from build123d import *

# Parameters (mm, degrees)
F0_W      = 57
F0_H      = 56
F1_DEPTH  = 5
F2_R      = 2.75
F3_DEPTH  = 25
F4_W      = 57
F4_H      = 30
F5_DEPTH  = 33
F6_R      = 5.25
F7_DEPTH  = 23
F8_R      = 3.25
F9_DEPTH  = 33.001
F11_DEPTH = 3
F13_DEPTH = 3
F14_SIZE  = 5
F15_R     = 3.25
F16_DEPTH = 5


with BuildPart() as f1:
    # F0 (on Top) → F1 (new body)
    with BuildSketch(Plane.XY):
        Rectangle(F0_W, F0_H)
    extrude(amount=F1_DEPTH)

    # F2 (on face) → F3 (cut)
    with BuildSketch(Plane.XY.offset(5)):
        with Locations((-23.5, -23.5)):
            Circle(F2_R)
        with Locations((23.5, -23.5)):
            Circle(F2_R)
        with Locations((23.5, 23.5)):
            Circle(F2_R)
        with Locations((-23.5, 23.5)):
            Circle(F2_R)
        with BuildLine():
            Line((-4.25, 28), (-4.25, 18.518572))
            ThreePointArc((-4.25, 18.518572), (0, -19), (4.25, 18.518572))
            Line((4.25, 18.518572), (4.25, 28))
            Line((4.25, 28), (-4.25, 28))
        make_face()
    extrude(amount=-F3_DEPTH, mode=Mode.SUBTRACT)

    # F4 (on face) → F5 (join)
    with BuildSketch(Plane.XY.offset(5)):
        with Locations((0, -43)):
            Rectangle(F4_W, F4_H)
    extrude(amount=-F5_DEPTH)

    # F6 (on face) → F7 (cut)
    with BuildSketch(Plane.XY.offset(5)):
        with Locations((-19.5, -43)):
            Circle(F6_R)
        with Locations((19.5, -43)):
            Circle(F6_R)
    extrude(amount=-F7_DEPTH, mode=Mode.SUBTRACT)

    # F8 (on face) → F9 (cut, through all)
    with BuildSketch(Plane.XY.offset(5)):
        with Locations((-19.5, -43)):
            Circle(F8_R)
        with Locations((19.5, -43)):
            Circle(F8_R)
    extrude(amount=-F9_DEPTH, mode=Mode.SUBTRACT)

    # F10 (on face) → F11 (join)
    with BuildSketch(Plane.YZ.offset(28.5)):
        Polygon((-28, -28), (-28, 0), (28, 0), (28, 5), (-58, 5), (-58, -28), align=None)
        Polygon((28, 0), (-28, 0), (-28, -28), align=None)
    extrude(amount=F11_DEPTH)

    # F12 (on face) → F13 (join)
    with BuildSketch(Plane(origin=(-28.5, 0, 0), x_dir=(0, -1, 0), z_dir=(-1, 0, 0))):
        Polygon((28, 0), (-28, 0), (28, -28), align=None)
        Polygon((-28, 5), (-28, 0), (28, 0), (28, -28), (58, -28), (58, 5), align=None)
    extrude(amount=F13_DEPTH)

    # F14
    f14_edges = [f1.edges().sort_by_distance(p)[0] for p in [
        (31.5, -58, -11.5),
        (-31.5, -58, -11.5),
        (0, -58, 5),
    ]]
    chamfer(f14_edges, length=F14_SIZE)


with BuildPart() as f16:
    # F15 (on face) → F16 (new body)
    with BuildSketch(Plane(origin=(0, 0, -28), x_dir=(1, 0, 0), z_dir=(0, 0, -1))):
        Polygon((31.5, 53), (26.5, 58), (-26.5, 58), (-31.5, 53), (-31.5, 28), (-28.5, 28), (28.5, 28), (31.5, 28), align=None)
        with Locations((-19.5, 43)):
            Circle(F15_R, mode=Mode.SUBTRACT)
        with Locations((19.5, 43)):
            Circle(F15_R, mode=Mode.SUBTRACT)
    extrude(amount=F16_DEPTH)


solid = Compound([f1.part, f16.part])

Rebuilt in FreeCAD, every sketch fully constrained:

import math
import FreeCAD as App
import Part
import Sketcher
from FreeCAD import Vector


def edges_at(feature, points):
    """Names of the edges that pass closest to the given points."""
    edges = feature.Shape.Edges
    near = lambda p: min(range(len(edges)), key=lambda i: edges[i].distToShape(Part.Vertex(*p))[0])
    return sorted({f"Edge{near(p) + 1}" for p in points})


def add_polygon(sketch, points):
    """Adds a closed chain of lines whose ends are joined by coincident constraints."""
    first, n = sketch.GeometryCount, len(points)
    for a, b in zip(points, points[1:] + points[:1]):
        sketch.addGeometry(Part.LineSegment(App.Vector(*a, 0), App.Vector(*b, 0)), False)
    for i in range(n):
        sketch.addConstraint(Sketcher.Constraint("Coincident", first + i, 2, first + (i + 1) % n, 1))

doc = App.newDocument("Part")
body = doc.addObject("PartDesign::Body", "Body")

sketch1 = body.newObject("Sketcher::SketchObject", "Sketch")
sketch1.AttachmentSupport = (doc.getObject("XY_Plane"), [""])
sketch1.MapMode = "FlatFace"
add_polygon(sketch1, [(-28, 28), (-28, -28), (28, -28), (28, 28)])
sketch1.addConstraint([
    Sketcher.Constraint("Vertical", 0),
    Sketcher.Constraint("Horizontal", 1),
    Sketcher.Constraint("Vertical", 2),
    Sketcher.Constraint("Horizontal", 3),
    Sketcher.Constraint("Symmetric", 0, 2, 2, 2, -1, 1),
    Sketcher.Constraint("DistanceX", 1, 1, 1, 2, 57.0),
    Sketcher.Constraint("DistanceY", 0, 2, 0, 1, 56.0),
])
pad1 = body.newObject("PartDesign::Pad", "Pad")
pad1.Profile = sketch1
pad1.Length = 5

sketch2 = body.newObject("Sketcher::SketchObject", "Sketch001")
sketch2.AttachmentSupport = (doc.getObject("XY_Plane"), [""])
sketch2.MapMode = "FlatFace"
sketch2.AttachmentOffset = App.Placement(Vector(0, 0, 5), App.Rotation())
sketch2.addGeometry([
    Part.Circle(Vector(-23.5, -23.5, 0), Vector(0, 0, 1), 2.8),
    Part.Circle(Vector(23.5, -23.5, 0), Vector(0, 0, 1), 2.8),
    Part.Circle(Vector(23.5, 23.5, 0), Vector(0, 0, 1), 2.8),
    Part.Circle(Vector(-23.5, 23.5, 0), Vector(0, 0, 1), 2.8),
    Part.LineSegment(Vector(-4.2, 28, 0), Vector(-4.2, 18.5, 0)),
    Part.ArcOfCircle(Part.Circle(Vector(0, 0, 0), Vector(0, 0, 1), 19), math.radians(103), math.radians(437)),
    Part.LineSegment(Vector(4.2, 18.5, 0), Vector(4.2, 28, 0)),
    Part.LineSegment(Vector(4.2, 28, 0), Vector(-4.2, 28, 0)),
], False)
sketch2.addConstraint([
    Sketcher.Constraint("Coincident", 4, 2, 5, 1),
    Sketcher.Constraint("Coincident", 5, 2, 6, 1),
    Sketcher.Constraint("Coincident", 6, 2, 7, 1),
    Sketcher.Constraint("Coincident", 7, 2, 4, 1),
    Sketcher.Constraint("Vertical", 4),
    Sketcher.Constraint("Vertical", 6),
    Sketcher.Constraint("Horizontal", 7),
    Sketcher.Constraint("Coincident", 5, 3, -1, 1),
    Sketcher.Constraint("Equal", 0, 1),
    Sketcher.Constraint("Equal", 1, 2),
    Sketcher.Constraint("Equal", 2, 3),
    Sketcher.Constraint("Symmetric", 0, 3, 2, 3, -1, 1),
    Sketcher.Constraint("Symmetric", 1, 3, 3, 3, -1, 1),
    Sketcher.Constraint("Symmetric", 0, 3, 1, 3, -2),
    Sketcher.Constraint("Horizontal", 4, 2, 5, 2),
    Sketcher.Constraint("Radius", 5, 19.0),
    Sketcher.Constraint("Diameter", 0, 5.5),
    Sketcher.Constraint("DistanceX", 7, 2, 7, 1, 8.5),
    Sketcher.Constraint("DistanceY", -1, 1, 6, 2, 28.0),
    Sketcher.Constraint("DistanceX", 0, 3, 1, 3, 47.0),
    Sketcher.Constraint("DistanceY", 1, 3, 2, 3, 47.0),
])
pocket1 = body.newObject("PartDesign::Pocket", "Pocket")
pocket1.Profile = sketch2
pocket1.Length = 25

sketch3 = body.newObject("Sketcher::SketchObject", "Sketch002")
sketch3.AttachmentSupport = (doc.getObject("XY_Plane"), [""])
sketch3.MapMode = "FlatFace"
sketch3.AttachmentOffset = App.Placement(Vector(0, 0, 5), App.Rotation())
add_polygon(sketch3, [(-28, -28), (-28, -58), (28, -58), (28, -28)])
sketch3.addConstraint([
    Sketcher.Constraint("Vertical", 0),
    Sketcher.Constraint("Horizontal", 1),
    Sketcher.Constraint("Vertical", 2),
    Sketcher.Constraint("Horizontal", 3),
    Sketcher.Constraint("DistanceX", 1, 1, 1, 2, 57.0),
    Sketcher.Constraint("DistanceY", 0, 2, 0, 1, 30.0),
    Sketcher.Constraint("DistanceY", 0, 2, -1, 1, 58.0),
    Sketcher.Constraint("DistanceX", 0, 2, -1, 1, 28.5),
])
pad2 = body.newObject("PartDesign::Pad", "Pad001")
pad2.Profile = sketch3
pad2.Length = 33
pad2.Reversed = True

sketch4 = body.newObject("Sketcher::SketchObject", "Sketch003")
sketch4.AttachmentSupport = (doc.getObject("XY_Plane"), [""])
sketch4.MapMode = "FlatFace"
sketch4.AttachmentOffset = App.Placement(Vector(0, 0, 5), App.Rotation())
sketch4.addGeometry([
    Part.Circle(Vector(-20, -43, 0), Vector(0, 0, 1), 5),
    Part.Circle(Vector(20, -43, 0), Vector(0, 0, 1), 5),
], False)
sketch4.addConstraint([
    Sketcher.Constraint("Equal", 0, 1),
    Sketcher.Constraint("Symmetric", 0, 3, 1, 3, -2),
    Sketcher.Constraint("Diameter", 0, 10.5),
    Sketcher.Constraint("DistanceY", 0, 3, -1, 1, 43.0),
    Sketcher.Constraint("DistanceX", 0, 3, 1, 3, 39.0),
])
pocket2 = body.newObject("PartDesign::Pocket", "Pocket001")
pocket2.Profile = sketch4
pocket2.Length = 23

sketch5 = body.newObject("Sketcher::SketchObject", "Sketch004")
sketch5.AttachmentSupport = (doc.getObject("XY_Plane"), [""])
sketch5.MapMode = "FlatFace"
sketch5.AttachmentOffset = App.Placement(Vector(0, 0, 5), App.Rotation())
sketch5.addGeometry([
    Part.Circle(Vector(-19.5, -43, 0), Vector(0, 0, 1), 3.2),
    Part.Circle(Vector(19.5, -43, 0), Vector(0, 0, 1), 3.2),
], False)
sketch5.addConstraint([
    Sketcher.Constraint("Equal", 0, 1),
    Sketcher.Constraint("Symmetric", 0, 3, 1, 3, -2),
    Sketcher.Constraint("Diameter", 0, 6.5),
    Sketcher.Constraint("DistanceY", 0, 3, -1, 1, 43.0),
    Sketcher.Constraint("DistanceX", 0, 3, 1, 3, 39.0),
])
pocket3 = body.newObject("PartDesign::Pocket", "Pocket002")
pocket3.Profile = sketch5
pocket3.Type = "ThroughAll"

sketch6 = body.newObject("Sketcher::SketchObject", "Sketch005")
sketch6.AttachmentSupport = (doc.getObject("YZ_Plane"), [""])
sketch6.MapMode = "FlatFace"
sketch6.AttachmentOffset = App.Placement(Vector(0, 0, 28.5), App.Rotation())
add_polygon(sketch6, [(28, 0), (28, 5), (-58, 5), (-58, -28), (-28, -28)])
sketch6.addConstraint([
    Sketcher.Constraint("Vertical", 0),
    Sketcher.Constraint("Horizontal", 1),
    Sketcher.Constraint("Vertical", 2),
    Sketcher.Constraint("Horizontal", 3),
    Sketcher.Constraint("PointOnObject", 4, 2, -1),
    Sketcher.Constraint("DistanceX", 1, 2, 1, 1, 86.0),
    Sketcher.Constraint("DistanceX", 3, 1, 3, 2, 30.0),
    Sketcher.Constraint("DistanceY", 0, 1, 0, 2, 5.0),
    Sketcher.Constraint("DistanceY", 2, 2, 2, 1, 33.0),
    Sketcher.Constraint("DistanceX", -1, 1, 0, 2, 28.0),
])
pad3 = body.newObject("PartDesign::Pad", "Pad002")
pad3.Profile = sketch6
pad3.Length = 3

sketch7 = body.newObject("Sketcher::SketchObject", "Sketch006")
sketch7.AttachmentSupport = (doc.getObject("YZ_Plane"), [""])
sketch7.MapMode = "FlatFace"
sketch7.AttachmentOffset = App.Placement(Vector(0, 0, -28.5), App.Rotation())
add_polygon(sketch7, [(28, 0), (-28, -28), (-58, -28), (-58, 5), (28, 5)])
sketch7.addConstraint([
    Sketcher.Constraint("Horizontal", 1),
    Sketcher.Constraint("Vertical", 2),
    Sketcher.Constraint("Horizontal", 3),
    Sketcher.Constraint("Vertical", 4),
    Sketcher.Constraint("PointOnObject", 4, 2, -1),
    Sketcher.Constraint("DistanceX", 1, 2, 1, 1, 30.0),
    Sketcher.Constraint("DistanceX", 3, 1, 3, 2, 86.0),
    Sketcher.Constraint("DistanceY", 2, 1, 2, 2, 33.0),
    Sketcher.Constraint("DistanceY", 4, 2, 4, 1, 5.0),
    Sketcher.Constraint("DistanceX", 0, 2, -1, 1, 28.0),
])
pad4 = body.newObject("PartDesign::Pad", "Pad003")
pad4.Profile = sketch7
pad4.Length = 3
pad4.Reversed = True
doc.recompute()

chamfer = body.newObject("PartDesign::Chamfer", "Chamfer")
chamfer.Base = (pad4, edges_at(pad4, [(31.5, -58, -11.5), (-31.5, -58, -11.5), (0, -58, 5)]))
chamfer.Size = 5
body2 = doc.addObject("PartDesign::Body", "Body001")

sketch8 = body2.newObject("Sketcher::SketchObject", "Sketch007")
sketch8.AttachmentSupport = (doc.getObject("XY_Plane001"), [""])
sketch8.MapMode = "FlatFace"
sketch8.AttachmentOffset = App.Placement(Vector(0, 0, -28), App.Rotation())
add_polygon(sketch8, [(31.5, -53), (26.5, -58), (-26.5, -58), (-31.5, -53), (-31.5, -28), (31.5, -28)])
sketch8.addGeometry(Part.Circle(Vector(-19.5, -43, 0), Vector(0, 0, 1), 3.2), False)
sketch8.addGeometry(Part.Circle(Vector(19.5, -43, 0), Vector(0, 0, 1), 3.2), False)
sketch8.addConstraint([
    Sketcher.Constraint("Horizontal", 1),
    Sketcher.Constraint("Vertical", 3),
    Sketcher.Constraint("Horizontal", 4),
    Sketcher.Constraint("Vertical", 5),
    Sketcher.Constraint("Equal", 6, 7),
    Sketcher.Constraint("Symmetric", 6, 3, 7, 3, -2),
    Sketcher.Constraint("Symmetric", 2, 2, 5, 2, -2),
    Sketcher.Constraint("Perpendicular", 0, 2),
    Sketcher.Constraint("Equal", 0, 2),
    Sketcher.Constraint("Diameter", 6, 6.5),
    Sketcher.Constraint("DistanceX", 1, 2, 1, 1, 53.0),
    Sketcher.Constraint("DistanceX", 4, 1, 4, 2, 63.0),
    Sketcher.Constraint("DistanceY", 3, 1, 3, 2, 25.0),
    Sketcher.Constraint("DistanceY", 6, 3, -1, 1, 43.0),
    Sketcher.Constraint("DistanceY", 0, 2, -1, 1, 58.0),
    Sketcher.Constraint("DistanceX", 6, 3, 7, 3, 39.0),
])
pad5 = body2.newObject("PartDesign::Pad", "Pad004")
pad5.Profile = sketch8
pad5.Length = 5
pad5.Reversed = True

doc.recompute()
